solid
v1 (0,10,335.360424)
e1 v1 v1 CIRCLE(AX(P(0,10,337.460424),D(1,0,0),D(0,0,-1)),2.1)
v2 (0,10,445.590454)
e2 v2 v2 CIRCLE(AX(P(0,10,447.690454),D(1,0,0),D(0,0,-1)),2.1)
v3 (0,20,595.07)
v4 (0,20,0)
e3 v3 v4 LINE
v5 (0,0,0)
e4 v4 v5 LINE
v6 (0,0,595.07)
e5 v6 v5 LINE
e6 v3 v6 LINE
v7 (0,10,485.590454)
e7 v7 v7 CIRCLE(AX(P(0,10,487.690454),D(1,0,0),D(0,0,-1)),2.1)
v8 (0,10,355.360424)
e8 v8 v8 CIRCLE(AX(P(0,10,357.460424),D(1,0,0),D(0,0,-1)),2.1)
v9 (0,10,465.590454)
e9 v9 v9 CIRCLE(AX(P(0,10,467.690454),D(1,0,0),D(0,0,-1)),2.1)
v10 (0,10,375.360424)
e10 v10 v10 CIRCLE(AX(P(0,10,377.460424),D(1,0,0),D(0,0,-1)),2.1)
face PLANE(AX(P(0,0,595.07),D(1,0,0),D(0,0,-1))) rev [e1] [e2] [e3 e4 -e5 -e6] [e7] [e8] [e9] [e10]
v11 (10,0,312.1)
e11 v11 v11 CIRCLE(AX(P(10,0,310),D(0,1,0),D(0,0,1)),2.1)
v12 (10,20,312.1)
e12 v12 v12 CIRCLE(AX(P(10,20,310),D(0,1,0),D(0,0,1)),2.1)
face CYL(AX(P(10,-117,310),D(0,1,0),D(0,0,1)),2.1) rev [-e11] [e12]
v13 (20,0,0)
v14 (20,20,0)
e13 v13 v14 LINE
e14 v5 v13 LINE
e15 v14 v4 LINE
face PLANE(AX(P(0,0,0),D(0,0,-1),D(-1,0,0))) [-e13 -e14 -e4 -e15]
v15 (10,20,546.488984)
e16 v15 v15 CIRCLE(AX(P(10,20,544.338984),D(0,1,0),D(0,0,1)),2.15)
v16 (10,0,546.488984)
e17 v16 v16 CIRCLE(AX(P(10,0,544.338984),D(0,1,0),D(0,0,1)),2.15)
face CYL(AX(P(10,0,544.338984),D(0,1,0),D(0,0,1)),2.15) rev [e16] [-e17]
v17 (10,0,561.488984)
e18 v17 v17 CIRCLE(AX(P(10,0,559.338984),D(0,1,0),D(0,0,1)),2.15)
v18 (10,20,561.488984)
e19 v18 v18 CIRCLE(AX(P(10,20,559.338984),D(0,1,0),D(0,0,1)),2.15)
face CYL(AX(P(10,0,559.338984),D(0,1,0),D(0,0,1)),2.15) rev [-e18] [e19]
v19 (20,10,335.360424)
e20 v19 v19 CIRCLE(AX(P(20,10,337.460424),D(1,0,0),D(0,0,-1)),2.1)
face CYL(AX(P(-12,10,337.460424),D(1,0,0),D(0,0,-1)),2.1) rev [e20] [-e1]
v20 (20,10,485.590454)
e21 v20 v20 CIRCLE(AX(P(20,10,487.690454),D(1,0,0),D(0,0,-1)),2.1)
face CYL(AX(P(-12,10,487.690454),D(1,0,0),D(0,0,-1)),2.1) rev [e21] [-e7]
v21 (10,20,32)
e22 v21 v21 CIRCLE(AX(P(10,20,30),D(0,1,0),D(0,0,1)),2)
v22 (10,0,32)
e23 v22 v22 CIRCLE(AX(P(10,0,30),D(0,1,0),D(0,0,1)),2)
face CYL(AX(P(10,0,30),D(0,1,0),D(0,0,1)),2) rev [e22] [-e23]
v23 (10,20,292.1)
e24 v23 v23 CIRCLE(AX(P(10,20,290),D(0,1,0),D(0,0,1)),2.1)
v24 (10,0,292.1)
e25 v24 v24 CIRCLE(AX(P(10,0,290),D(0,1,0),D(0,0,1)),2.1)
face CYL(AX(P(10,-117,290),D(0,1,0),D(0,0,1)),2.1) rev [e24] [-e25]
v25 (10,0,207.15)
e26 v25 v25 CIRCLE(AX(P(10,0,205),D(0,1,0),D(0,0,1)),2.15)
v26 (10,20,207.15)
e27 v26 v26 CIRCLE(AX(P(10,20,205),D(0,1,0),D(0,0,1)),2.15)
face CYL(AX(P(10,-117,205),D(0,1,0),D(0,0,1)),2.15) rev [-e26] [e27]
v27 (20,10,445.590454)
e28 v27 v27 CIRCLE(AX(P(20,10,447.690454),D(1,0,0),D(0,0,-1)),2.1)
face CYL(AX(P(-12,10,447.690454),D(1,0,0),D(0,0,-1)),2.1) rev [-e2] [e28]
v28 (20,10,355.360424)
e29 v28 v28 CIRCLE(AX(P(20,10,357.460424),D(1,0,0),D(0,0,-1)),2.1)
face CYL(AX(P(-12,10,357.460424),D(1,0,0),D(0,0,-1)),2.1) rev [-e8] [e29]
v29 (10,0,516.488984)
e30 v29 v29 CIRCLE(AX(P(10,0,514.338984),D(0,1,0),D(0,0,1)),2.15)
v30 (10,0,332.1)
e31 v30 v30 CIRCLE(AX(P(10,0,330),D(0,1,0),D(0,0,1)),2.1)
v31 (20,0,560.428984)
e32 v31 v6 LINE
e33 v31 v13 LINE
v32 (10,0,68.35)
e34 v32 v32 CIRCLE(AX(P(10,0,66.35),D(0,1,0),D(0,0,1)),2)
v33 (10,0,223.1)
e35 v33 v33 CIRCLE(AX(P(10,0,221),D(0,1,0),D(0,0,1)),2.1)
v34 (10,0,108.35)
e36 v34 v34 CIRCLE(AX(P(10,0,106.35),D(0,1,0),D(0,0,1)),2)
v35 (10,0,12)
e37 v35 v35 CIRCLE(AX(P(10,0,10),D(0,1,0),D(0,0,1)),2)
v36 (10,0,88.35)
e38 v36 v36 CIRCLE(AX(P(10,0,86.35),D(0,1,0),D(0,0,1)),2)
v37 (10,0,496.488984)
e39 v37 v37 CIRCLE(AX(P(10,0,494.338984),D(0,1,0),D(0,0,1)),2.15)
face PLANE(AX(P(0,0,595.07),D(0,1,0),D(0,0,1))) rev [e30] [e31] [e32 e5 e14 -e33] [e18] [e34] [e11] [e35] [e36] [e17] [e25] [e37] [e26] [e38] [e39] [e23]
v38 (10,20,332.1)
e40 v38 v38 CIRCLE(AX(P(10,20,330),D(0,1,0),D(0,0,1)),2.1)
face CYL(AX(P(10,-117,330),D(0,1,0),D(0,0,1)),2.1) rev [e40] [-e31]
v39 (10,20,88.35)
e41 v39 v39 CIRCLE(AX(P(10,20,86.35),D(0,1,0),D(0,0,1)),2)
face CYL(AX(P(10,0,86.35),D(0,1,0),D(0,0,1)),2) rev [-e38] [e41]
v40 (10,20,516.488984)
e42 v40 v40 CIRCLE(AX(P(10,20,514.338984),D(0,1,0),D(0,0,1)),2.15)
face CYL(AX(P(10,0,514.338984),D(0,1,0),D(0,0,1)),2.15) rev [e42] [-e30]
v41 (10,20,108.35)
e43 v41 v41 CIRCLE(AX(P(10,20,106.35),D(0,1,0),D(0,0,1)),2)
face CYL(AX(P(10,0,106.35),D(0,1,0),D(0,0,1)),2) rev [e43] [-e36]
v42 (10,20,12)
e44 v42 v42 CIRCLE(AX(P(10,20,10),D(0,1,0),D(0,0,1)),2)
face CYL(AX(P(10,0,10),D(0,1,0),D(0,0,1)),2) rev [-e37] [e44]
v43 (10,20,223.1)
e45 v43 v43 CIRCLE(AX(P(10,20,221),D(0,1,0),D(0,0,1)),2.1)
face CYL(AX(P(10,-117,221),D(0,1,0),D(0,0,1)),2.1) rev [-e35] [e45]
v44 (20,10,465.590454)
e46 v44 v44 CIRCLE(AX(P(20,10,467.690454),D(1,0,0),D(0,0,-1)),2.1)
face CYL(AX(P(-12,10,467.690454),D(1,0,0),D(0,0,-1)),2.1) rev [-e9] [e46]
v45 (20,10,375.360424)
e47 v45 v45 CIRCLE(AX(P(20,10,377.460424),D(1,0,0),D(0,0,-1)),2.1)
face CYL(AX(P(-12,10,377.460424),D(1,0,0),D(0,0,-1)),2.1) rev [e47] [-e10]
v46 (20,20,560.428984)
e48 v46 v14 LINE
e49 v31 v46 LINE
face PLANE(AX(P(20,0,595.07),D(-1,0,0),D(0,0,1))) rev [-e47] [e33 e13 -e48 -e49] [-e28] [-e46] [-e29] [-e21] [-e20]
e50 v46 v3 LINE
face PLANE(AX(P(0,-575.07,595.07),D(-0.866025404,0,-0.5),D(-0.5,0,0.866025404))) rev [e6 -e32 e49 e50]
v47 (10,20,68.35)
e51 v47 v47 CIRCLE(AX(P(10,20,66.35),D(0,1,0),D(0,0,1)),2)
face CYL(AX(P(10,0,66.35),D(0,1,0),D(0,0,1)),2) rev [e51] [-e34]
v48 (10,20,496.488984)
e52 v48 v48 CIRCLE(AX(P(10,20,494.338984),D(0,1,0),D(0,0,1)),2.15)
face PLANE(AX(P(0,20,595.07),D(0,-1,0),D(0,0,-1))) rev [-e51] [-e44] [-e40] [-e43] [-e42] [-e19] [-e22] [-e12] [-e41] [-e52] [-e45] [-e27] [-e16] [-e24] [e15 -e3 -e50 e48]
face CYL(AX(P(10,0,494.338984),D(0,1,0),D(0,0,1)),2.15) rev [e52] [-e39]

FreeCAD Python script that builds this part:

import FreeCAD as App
import Part
import Sketcher
Q = App.Units.Quantity


def add_polygon(sketch, points):
    """Adds a closed chain of lines whose ends are joined by coincident constraints."""
    first, n = sketch.GeometryCount, len(points)
    for a, b in zip(points, points[1:] + points[:1]):
        sketch.addGeometry(Part.LineSegment(App.Vector(*a, 0), App.Vector(*b, 0)), False)
    for i in range(n):
        sketch.addConstraint(Sketcher.Constraint("Coincident", first + i, 2, first + (i + 1) % n, 1))

doc = App.newDocument("Part")
body = doc.addObject("PartDesign::Body", "Body")

# Sketch on XY plane
sketch1 = doc.addObject("Sketcher::SketchObject", "Sketch")
body.addObject(sketch1)
sketch1.AttachmentSupport = (doc.XY_Plane, [""])
sketch1.MapMode = "FlatFace"
add_polygon(sketch1, [(0, 20), (0, 0), (20, 0), (20, 20)])  # lines 0-3
sketch1.addConstraint(Sketcher.Constraint("Vertical", 0))
sketch1.addConstraint(Sketcher.Constraint("Horizontal", 1))
sketch1.addConstraint(Sketcher.Constraint("Vertical", 2))
sketch1.addConstraint(Sketcher.Constraint("Horizontal", 3))
sketch1.addConstraint(Sketcher.Constraint("Coincident", 0, 2, -1, 1))
sketch1.addConstraint(Sketcher.Constraint("Equal", 3, 0))
sketch1.addConstraint(Sketcher.Constraint("DistanceX", 1, 1, 1, 2, 20.0))
pad1 = doc.addObject("PartDesign::Pad", "Pad")
body.addObject(pad1)
pad1.Profile = sketch1
pad1.Length = 595.07

# Sketch on XZ plane
sketch2 = doc.addObject("Sketcher::SketchObject", "Sketch001")
body.addObject(sketch2)
sketch2.AttachmentSupport = (doc.XZ_Plane, [""])
sketch2.MapMode = "FlatFace"
sketch2.AttachmentOffset = App.Placement(App.Vector(0, 0, -20), App.Rotation())
add_polygon(sketch2, [(20, 560.428984), (0, 595.07), (20, 595.07)])  # lines 0-2
sketch2.addConstraint(Sketcher.Constraint("Horizontal", 1))
sketch2.addConstraint(Sketcher.Constraint("Vertical", 2))
sketch2.addConstraint(Sketcher.Constraint("PointOnObject", 0, 2, -2))
sketch2.addConstraint(Sketcher.Constraint("DistanceX", 1, 1, 1, 2, 20.0))
sketch2.addConstraint(Sketcher.Constraint("Angle", 0, Q("120 deg")))
sketch2.addConstraint(Sketcher.Constraint("DistanceY", -1, 1, 0, 2, 595.07))
pocket1 = doc.addObject("PartDesign::Pocket", "Pocket")
body.addObject(pocket1)
pocket1.Profile = sketch2
pocket1.Length = 595.07
pocket1.Reversed = True

# Sketch on XZ plane
sketch3 = doc.addObject("Sketcher::SketchObject", "Sketch002")
body.addObject(sketch3)
sketch3.AttachmentSupport = (doc.XZ_Plane, [""])
sketch3.MapMode = "FlatFace"
sketch3.AttachmentOffset = App.Placement(App.Vector(0, 0, -20), App.Rotation())
sketch3.addGeometry(Part.Circle(App.Vector(10, 10, 0), App.Vector(0, 0, 1), 2), False)
sketch3.addGeometry(Part.Circle(App.Vector(10, 30, 0), App.Vector(0, 0, 1), 2), False)
sketch3.addGeometry(Part.Circle(App.Vector(10, 66.35, 0), App.Vector(0, 0, 1), 2), False)
sketch3.addGeometry(Part.Circle(App.Vector(10, 86.35, 0), App.Vector(0, 0, 1), 2), False)
sketch3.addGeometry(Part.Circle(App.Vector(10, 106.35, 0), App.Vector(0, 0, 1), 2), False)
sketch3.addConstraint(Sketcher.Constraint("Equal", 0, 1))
sketch3.addConstraint(Sketcher.Constraint("Equal", 1, 2))
sketch3.addConstraint(Sketcher.Constraint("Equal", 2, 3))
sketch3.addConstraint(Sketcher.Constraint("Equal", 3, 4))
sketch3.addConstraint(Sketcher.Constraint("Vertical", 0, 3, 1, 3))
sketch3.addConstraint(Sketcher.Constraint("Vertical", 1, 3, 2, 3))
sketch3.addConstraint(Sketcher.Constraint("Vertical", 2, 3, 3, 3))
sketch3.addConstraint(Sketcher.Constraint("Vertical", 3, 3, 4, 3))
sketch3.addConstraint(Sketcher.Constraint("Diameter", 0, 4.0))
sketch3.addConstraint(Sketcher.Constraint("DistanceX", -1, 1, 0, 3, 10.0))
sketch3.addConstraint(Sketcher.Constraint("DistanceY", -1, 1, 0, 3, 10.0))
sketch3.addConstraint(Sketcher.Constraint("DistanceY", -1, 1, 1, 3, 30.0))
sketch3.addConstraint(Sketcher.Constraint("DistanceY", 2, 3, 3, 3, 20.0))
sketch3.addConstraint(Sketcher.Constraint("DistanceY", 3, 3, 4, 3, 20.0))
sketch3.addConstraint(Sketcher.Constraint("DistanceY", -1, 1, 2, 3, 66.35))
pocket2 = doc.addObject("PartDesign::Pocket", "Pocket001")
body.addObject(pocket2)
pocket2.Profile = sketch3
pocket2.Type = "ThroughAll"
pocket2.Midplane = True

# Sketch on XZ plane
sketch4 = doc.addObject("Sketcher::SketchObject", "Sketch003")
body.addObject(sketch4)
sketch4.AttachmentSupport = (doc.XZ_Plane, [""])
sketch4.MapMode = "FlatFace"
sketch4.AttachmentOffset = App.Placement(App.Vector(0, 0, -20), App.Rotation())
sketch4.addGeometry(Part.Circle(App.Vector(10, 544.338984, 0), App.Vector(0, 0, 1), 2.15), False)
sketch4.addGeometry(Part.Circle(App.Vector(10, 559.338984, 0), App.Vector(0, 0, 1), 2.15), False)
sketch4.addGeometry(Part.Circle(App.Vector(10, 514.338984, 0), App.Vector(0, 0, 1), 2.15), False)
sketch4.addGeometry(Part.Circle(App.Vector(10, 494.338984, 0), App.Vector(0, 0, 1), 2.15), False)
sketch4.addConstraint(Sketcher.Constraint("Equal", 0, 1))
sketch4.addConstraint(Sketcher.Constraint("Equal", 1, 2))
sketch4.addConstraint(Sketcher.Constraint("Equal", 2, 3))
sketch4.addConstraint(Sketcher.Constraint("Vertical", 0, 3, 1, 3))
sketch4.addConstraint(Sketcher.Constraint("Vertical", 1, 3, 2, 3))
sketch4.addConstraint(Sketcher.Constraint("Vertical", 2, 3, 3, 3))
sketch4.addConstraint(Sketcher.Constraint("Diameter", 0, 4.3))
sketch4.addConstraint(Sketcher.Constraint("DistanceX", -1, 1, 0, 3, 10.0))
sketch4.addConstraint(Sketcher.Constraint("DistanceY", 0, 3, 1, 3, 15.0))
sketch4.addConstraint(Sketcher.Constraint("DistanceY", 2, 3, 0, 3, 30.0))
sketch4.addConstraint(Sketcher.Constraint("DistanceY", 3, 3, 2, 3, 20.0))
sketch4.addConstraint(Sketcher.Constraint("DistanceY", -1, 1, 0, 3, 544.338984))
pocket3 = doc.addObject("PartDesign::Pocket", "Pocket002")
body.addObject(pocket3)
pocket3.Profile = sketch4
pocket3.Length = 20
pocket3.Reversed = True

# Sketch on XZ plane
sketch5 = doc.addObject("Sketcher::SketchObject", "Sketch004")
body.addObject(sketch5)
sketch5.AttachmentSupport = (doc.XZ_Plane, [""])
sketch5.MapMode = "FlatFace"
sketch5.AttachmentOffset = App.Placement(App.Vector(0, 0, -20), App.Rotation())
sketch5.addGeometry(Part.Circle(App.Vector(10, 205, 0), App.Vector(0, 0, 1), 2.15), False)
sketch5.addGeometry(Part.Circle(App.Vector(10, 221, 0), App.Vector(0, 0, 1), 2.1), False)
sketch5.addGeometry(Part.Circle(App.Vector(10, 310, 0), App.Vector(0, 0, 1), 2.1), False)
sketch5.addGeometry(Part.Circle(App.Vector(10, 290, 0), App.Vector(0, 0, 1), 2.1), False)
sketch5.addGeometry(Part.Circle(App.Vector(10, 330, 0), App.Vector(0, 0, 1), 2.1), False)
sketch5.addConstraint(Sketcher.Constraint("Equal", 1, 2))
sketch5.addConstraint(Sketcher.Constraint("Equal", 2, 3))
sketch5.addConstraint(Sketcher.Constraint("Equal", 3, 4))
sketch5.addConstraint(Sketcher.Constraint("Vertical", 0, 3, 1, 3))
sketch5.addConstraint(Sketcher.Constraint("Vertical", 1, 3, 2, 3))
sketch5.addConstraint(Sketcher.Constraint("Vertical", 2, 3, 3, 3))
sketch5.addConstraint(Sketcher.Constraint("Vertical", 3, 3, 4, 3))
sketch5.addConstraint(Sketcher.Constraint("Diameter", 0, 4.3))
sketch5.addConstraint(Sketcher.Constraint("Diameter", 1, 4.2))
sketch5.addConstraint(Sketcher.Constraint("DistanceX", -1, 1, 0, 3, 10.0))
sketch5.addConstraint(Sketcher.Constraint("DistanceY", -1, 1, 0, 3, 205.0))
sketch5.addConstraint(Sketcher.Constraint("DistanceY", -1, 1, 1, 3, 221.0))
sketch5.addConstraint(Sketcher.Constraint("DistanceY", -1, 1, 2, 3, 310.0))
sketch5.addConstraint(Sketcher.Constraint("DistanceY", -1, 1, 3, 3, 290.0))
sketch5.addConstraint(Sketcher.Constraint("DistanceY", -1, 1, 4, 3, 330.0))
pocket4 = doc.addObject("PartDesign::Pocket", "Pocket003")
body.addObject(pocket4)
pocket4.Profile = sketch5
pocket4.Length = 137
pocket4.Reversed = True

# Sketch on YZ plane
sketch6 = doc.addObject("Sketcher::SketchObject", "Sketch005")
body.addObject(sketch6)
sketch6.AttachmentSupport = (doc.YZ_Plane, [""])
sketch6.MapMode = "FlatFace"
sketch6.AttachmentOffset = App.Placement(App.Vector(0, 0, 20), App.Rotation())
sketch6.addGeometry(Part.Circle(App.Vector(10, 467.690454, 0), App.Vector(0, 0, 1), 2.1), False)
sketch6.addGeometry(Part.Circle(App.Vector(10, 487.690454, 0), App.Vector(0, 0, 1), 2.1), False)
sketch6.addGeometry(Part.Circle(App.Vector(10, 447.690454, 0), App.Vector(0, 0, 1), 2.1), False)
sketch6.addGeometry(Part.Circle(App.Vector(10, 357.460424, 0), App.Vector(0, 0, 1), 2.1), False)
sketch6.addGeometry(Part.Circle(App.Vector(10, 377.460424, 0), App.Vector(0, 0, 1), 2.1), False)
sketch6.addGeometry(Part.Circle(App.Vector(10, 337.460424, 0), App.Vector(0, 0, 1), 2.1), False)
sketch6.addConstraint(Sketcher.Constraint("Equal", 0, 1))
sketch6.addConstraint(Sketcher.Constraint("Equal", 1, 2))
sketch6.addConstraint(Sketcher.Constraint("Equal", 2, 3))
sketch6.addConstraint(Sketcher.Constraint("Equal", 3, 4))
sketch6.addConstraint(Sketcher.Constraint("Equal", 4, 5))
sketch6.addConstraint(Sketcher.Constraint("Vertical", 0, 3, 1, 3))
sketch6.addConstraint(Sketcher.Constraint("Vertical", 1, 3, 2, 3))
sketch6.addConstraint(Sketcher.Constraint("Vertical", 2, 3, 3, 3))
sketch6.addConstraint(Sketcher.Constraint("Vertical", 3, 3, 4, 3))
sketch6.addConstraint(Sketcher.Constraint("Vertical", 4, 3, 5, 3))
sketch6.addConstraint(Sketcher.Constraint("Diameter", 0, 4.2))
sketch6.addConstraint(Sketcher.Constraint("DistanceX", -1, 1, 0, 3, 10.0))
sketch6.addConstraint(Sketcher.Constraint("DistanceY", 0, 3, 1, 3, 20.0))
sketch6.addConstraint(Sketcher.Constraint("DistanceY", 2, 3, 0, 3, 20.0))
sketch6.addConstraint(Sketcher.Constraint("DistanceY", 3, 3, 4, 3, 20.0))
sketch6.addConstraint(Sketcher.Constraint("DistanceY", 5, 3, 3, 3, 20.0))
sketch6.addConstraint(Sketcher.Constraint("DistanceY", 3, 3, 2, 3, 90.23003))
sketch6.addConstraint(Sketcher.Constraint("DistanceY", -1, 1, 0, 3, 467.690454))
pocket5 = doc.addObject("PartDesign::Pocket", "Pocket004")
body.addObject(pocket5)
pocket5.Profile = sketch6
pocket5.Length = 32

doc.recompute()
